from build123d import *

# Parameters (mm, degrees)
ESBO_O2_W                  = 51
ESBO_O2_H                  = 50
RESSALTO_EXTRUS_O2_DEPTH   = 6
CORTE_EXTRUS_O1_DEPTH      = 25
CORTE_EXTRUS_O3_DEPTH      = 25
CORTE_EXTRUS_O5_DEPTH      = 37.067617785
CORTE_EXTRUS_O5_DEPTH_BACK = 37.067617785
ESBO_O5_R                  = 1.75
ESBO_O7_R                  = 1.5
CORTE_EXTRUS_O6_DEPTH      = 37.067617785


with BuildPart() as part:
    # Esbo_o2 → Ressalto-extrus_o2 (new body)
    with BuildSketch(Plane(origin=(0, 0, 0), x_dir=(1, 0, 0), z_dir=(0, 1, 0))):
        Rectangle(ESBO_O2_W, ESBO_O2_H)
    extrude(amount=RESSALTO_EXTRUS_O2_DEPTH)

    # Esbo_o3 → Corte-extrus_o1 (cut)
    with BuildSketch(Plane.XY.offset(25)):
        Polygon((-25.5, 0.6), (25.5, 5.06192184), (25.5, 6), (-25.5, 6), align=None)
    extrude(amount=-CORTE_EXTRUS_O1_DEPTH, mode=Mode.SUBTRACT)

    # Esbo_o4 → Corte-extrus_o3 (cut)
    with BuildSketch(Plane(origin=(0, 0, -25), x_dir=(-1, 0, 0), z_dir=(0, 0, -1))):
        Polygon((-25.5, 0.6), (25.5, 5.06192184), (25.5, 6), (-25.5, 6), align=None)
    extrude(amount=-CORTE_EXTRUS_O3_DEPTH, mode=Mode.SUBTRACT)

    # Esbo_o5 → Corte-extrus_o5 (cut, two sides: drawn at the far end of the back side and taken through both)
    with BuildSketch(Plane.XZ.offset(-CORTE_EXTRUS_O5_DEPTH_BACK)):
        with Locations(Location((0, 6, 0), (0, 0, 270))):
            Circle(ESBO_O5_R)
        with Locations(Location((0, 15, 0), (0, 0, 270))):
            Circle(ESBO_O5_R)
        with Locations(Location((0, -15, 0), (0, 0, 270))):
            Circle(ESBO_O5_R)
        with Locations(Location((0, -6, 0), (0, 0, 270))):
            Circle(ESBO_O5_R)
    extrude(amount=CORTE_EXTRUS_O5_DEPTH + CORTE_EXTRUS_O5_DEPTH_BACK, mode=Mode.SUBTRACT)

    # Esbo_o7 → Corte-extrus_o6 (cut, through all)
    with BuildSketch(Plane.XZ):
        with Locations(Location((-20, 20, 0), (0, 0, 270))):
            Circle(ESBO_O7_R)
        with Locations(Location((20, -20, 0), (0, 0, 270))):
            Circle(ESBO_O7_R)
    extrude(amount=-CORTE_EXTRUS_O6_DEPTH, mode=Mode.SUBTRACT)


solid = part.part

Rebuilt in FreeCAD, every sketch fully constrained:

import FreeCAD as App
import Part
import Sketcher
from FreeCAD import Vector
Q = App.Units.Quantity

doc = App.newDocument("Part")
body = doc.addObject("PartDesign::Body", "Body")

sketch1 = body.newObject("Sketcher::SketchObject", "Sketch")
sketch1.AttachmentSupport = (doc.getObject("XZ_Plane"), [""])
sketch1.MapMode = "FlatFace"
sketch1.addGeometry([
    Part.LineSegment(Vector(-26, -25, 0), Vector(-26, 25, 0)),
    Part.LineSegment(Vector(-26, 25, 0), Vector(26, 25, 0)),
    Part.LineSegment(Vector(26, 25, 0), Vector(26, -25, 0)),
    Part.LineSegment(Vector(26, -25, 0), Vector(-26, -25, 0)),
], False)
sketch1.addConstraint([
    Sketcher.Constraint("Coincident", 0, 2, 1, 1),
    Sketcher.Constraint("Coincident", 1, 2, 2, 1),
    Sketcher.Constraint("Coincident", 2, 2, 3, 1),
    Sketcher.Constraint("Coincident", 3, 2, 0, 1),
    Sketcher.Constraint("Vertical", 0),
    Sketcher.Constraint("Horizontal", 1),
    Sketcher.Constraint("Vertical", 2),
    Sketcher.Constraint("Horizontal", 3),
    Sketcher.Constraint("Symmetric", 0, 2, 2, 2, -1, 1),
    Sketcher.Constraint("DistanceX", 1, 1, 1, 2, Q("51 mm")),
    Sketcher.Constraint("DistanceY", 0, 1, 0, 2, Q("50 mm")),
])
pad1 = body.newObject("PartDesign::Pad", "Pad")
pad1.Profile = sketch1
pad1.Length = 6
pad1.Reversed = True

sketch2 = body.newObject("Sketcher::SketchObject", "Sketch001")
sketch2.AttachmentSupport = (doc.getObject("XY_Plane"), [""])
sketch2.MapMode = "FlatFace"
sketch2.AttachmentOffset = App.Placement(Vector(0, 0, 25), App.Rotation())
sketch2.addGeometry([
    Part.LineSegment(Vector(-25.5, 0.6, 0), Vector(25.5, 5.1, 0)),
    Part.LineSegment(Vector(25.5, 5.1, 0), Vector(25.5, 6, 0)),
    Part.LineSegment(Vector(25.5, 6, 0), Vector(-25.5, 6, 0)),
    Part.LineSegment(Vector(-25.5, 6, 0), Vector(-25.5, 0.6, 0)),
], False)
sketch2.addConstraint([
    Sketcher.Constraint("Coincident", 0, 2, 1, 1),
    Sketcher.Constraint("Coincident", 1, 2, 2, 1),
    Sketcher.Constraint("Coincident", 2, 2, 3, 1),
    Sketcher.Constraint("Coincident", 3, 2, 0, 1),
    Sketcher.Constraint("Vertical", 1),
    Sketcher.Constraint("Horizontal", 2),
    Sketcher.Constraint("Vertical", 3),
    Sketcher.Constraint("DistanceX", 2, 2, 2, 1, Q("51 mm")),
    Sketcher.Constraint("Angle", 0, Q("5 deg")),
    Sketcher.Constraint("DistanceY", 3, 2, 3, 1, Q("5.4 mm")),
    Sketcher.Constraint("DistanceY", -1, 1, 1, 2, Q("6 mm")),
    Sketcher.Constraint("DistanceX", -1, 1, 0, 2, Q("25.5 mm")),
])
pocket1 = body.newObject("PartDesign::Pocket", "Pocket")
pocket1.Profile = sketch2
pocket1.Length = 25

sketch3 = body.newObject("Sketcher::SketchObject", "Sketch002")
sketch3.AttachmentSupport = (doc.getObject("XY_Plane"), [""])
sketch3.MapMode = "FlatFace"
sketch3.AttachmentOffset = App.Placement(Vector(0, 0, -25), App.Rotation())
sketch3.addGeometry([
    Part.LineSegment(Vector(25.5, 0.6, 0), Vector(-25.5, 5.1, 0)),
    Part.LineSegment(Vector(-25.5, 5.1, 0), Vector(-25.5, 6, 0)),
    Part.LineSegment(Vector(-25.5, 6, 0), Vector(25.5, 6, 0)),
    Part.LineSegment(Vector(25.5, 6, 0), Vector(25.5, 0.6, 0)),
], False)
sketch3.addConstraint([
    Sketcher.Constraint("Coincident", 0, 2, 1, 1),
    Sketcher.Constraint("Coincident", 1, 2, 2, 1),
    Sketcher.Constraint("Coincident", 2, 2, 3, 1),
    Sketcher.Constraint("Coincident", 3, 2, 0, 1),
    Sketcher.Constraint("Vertical", 1),
    Sketcher.Constraint("Horizontal", 2),
    Sketcher.Constraint("Vertical", 3),
    Sketcher.Constraint("DistanceX", 2, 1, 2, 2, Q("51 mm")),
    Sketcher.Constraint("Angle", 0, Q("175 deg")),
    Sketcher.Constraint("DistanceY", 3, 2, 3, 1, Q("5.4 mm")),
    Sketcher.Constraint("DistanceY", -1, 1, 1, 2, Q("6 mm")),
    Sketcher.Constraint("DistanceX", 0, 2, -1, 1, Q("25.5 mm")),
])
pocket2 = body.newObject("PartDesign::Pocket", "Pocket001")
pocket2.Profile = sketch3
pocket2.Length = 25
pocket2.Reversed = True

sketch4 = body.newObject("Sketcher::SketchObject", "Sketch003")
sketch4.AttachmentSupport = (doc.getObject("XZ_Plane"), [""])
sketch4.MapMode = "FlatFace"
sketch4.addGeometry([
    Part.Circle(Vector(0, 6, 0), Vector(0, 0, 1), 1.8),
    Part.Circle(Vector(0, 15, 0), Vector(0, 0, 1), 1.8),
    Part.Circle(Vector(0, -15, 0), Vector(0, 0, 1), 1.8),
    Part.Circle(Vector(0, -6, 0), Vector(0, 0, 1), 1.8),
], False)
sketch4.addConstraint([
    Sketcher.Constraint("Equal", 0, 1),
    Sketcher.Constraint("Equal", 1, 2),
    Sketcher.Constraint("Equal", 2, 3),
    Sketcher.Constraint("Symmetric", 1, 3, 2, 3, -1, 1),
    Sketcher.Constraint("Symmetric", 0, 3, 3, 3, -1, 1),
    Sketcher.Constraint("PointOnObject", 0, 3, -2),
    Sketcher.Constraint("PointOnObject", 1, 3, -2),
    Sketcher.Constraint("Diameter", 0, Q("3.5 mm")),
    Sketcher.Constraint("DistanceY", -1, 1, 0, 3, Q("6 mm")),
    Sketcher.Constraint("DistanceY", -1, 1, 1, 3, Q("15 mm")),
])
pocket3 = body.newObject("PartDesign::Pocket", "Pocket002")
pocket3.Profile = sketch4
pocket3.Type = "ThroughAll"
pocket3.Midplane = True

sketch5 = body.newObject("Sketcher::SketchObject", "Sketch004")
sketch5.AttachmentSupport = (doc.getObject("XZ_Plane"), [""])
sketch5.MapMode = "FlatFace"
sketch5.addGeometry([
    Part.Circle(Vector(-20, 20, 0), Vector(0, 0, 1), 1.5),
    Part.Circle(Vector(20, -20, 0), Vector(0, 0, 1), 1.5),
], False)
sketch5.addConstraint([
    Sketcher.Constraint("Equal", 0, 1),
    Sketcher.Constraint("Symmetric", 0, 3, 1, 3, -1, 1),
    Sketcher.Constraint("Diameter", 0, Q("3 mm")),
    Sketcher.Constraint("DistanceX", 0, 3, -1, 1, Q("20 mm")),
    Sketcher.Constraint("DistanceY", -1, 1, 0, 3, Q("20 mm")),
])
pocket4 = body.newObject("PartDesign::Pocket", "Pocket003")
pocket4.Profile = sketch5
pocket4.Type = "ThroughAll"

doc.recompute()
